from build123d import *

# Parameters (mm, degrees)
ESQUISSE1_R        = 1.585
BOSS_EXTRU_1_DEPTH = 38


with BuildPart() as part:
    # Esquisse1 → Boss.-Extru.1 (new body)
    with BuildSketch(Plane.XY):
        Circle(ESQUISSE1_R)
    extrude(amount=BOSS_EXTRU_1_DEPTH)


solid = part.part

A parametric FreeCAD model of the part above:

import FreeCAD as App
import Part
import Sketcher

V = App.Vector

doc = App.newDocument("Part")
body = doc.addObject("PartDesign::Body", "Body")

sketch1 = body.newObject("Sketcher::SketchObject", "Sketch")
sketch1.AttachmentSupport = (doc.getObject("XY_Plane"), [""])
sketch1.MapMode = "FlatFace"
sketch1.addGeometry(Part.Circle(V(0, 0, 0), V(0, 0, 1), 1.585), False)
sketch1.addConstraint(Sketcher.Constraint("Coincident", 0, 3, -1, 1))
sketch1.addConstraint(Sketcher.Constraint("Diameter", 0, 3.17))
pad1 = body.newObject("PartDesign::Pad", "Pad")
pad1.Profile = sketch1
pad1.Length = 38

doc.recompute()
